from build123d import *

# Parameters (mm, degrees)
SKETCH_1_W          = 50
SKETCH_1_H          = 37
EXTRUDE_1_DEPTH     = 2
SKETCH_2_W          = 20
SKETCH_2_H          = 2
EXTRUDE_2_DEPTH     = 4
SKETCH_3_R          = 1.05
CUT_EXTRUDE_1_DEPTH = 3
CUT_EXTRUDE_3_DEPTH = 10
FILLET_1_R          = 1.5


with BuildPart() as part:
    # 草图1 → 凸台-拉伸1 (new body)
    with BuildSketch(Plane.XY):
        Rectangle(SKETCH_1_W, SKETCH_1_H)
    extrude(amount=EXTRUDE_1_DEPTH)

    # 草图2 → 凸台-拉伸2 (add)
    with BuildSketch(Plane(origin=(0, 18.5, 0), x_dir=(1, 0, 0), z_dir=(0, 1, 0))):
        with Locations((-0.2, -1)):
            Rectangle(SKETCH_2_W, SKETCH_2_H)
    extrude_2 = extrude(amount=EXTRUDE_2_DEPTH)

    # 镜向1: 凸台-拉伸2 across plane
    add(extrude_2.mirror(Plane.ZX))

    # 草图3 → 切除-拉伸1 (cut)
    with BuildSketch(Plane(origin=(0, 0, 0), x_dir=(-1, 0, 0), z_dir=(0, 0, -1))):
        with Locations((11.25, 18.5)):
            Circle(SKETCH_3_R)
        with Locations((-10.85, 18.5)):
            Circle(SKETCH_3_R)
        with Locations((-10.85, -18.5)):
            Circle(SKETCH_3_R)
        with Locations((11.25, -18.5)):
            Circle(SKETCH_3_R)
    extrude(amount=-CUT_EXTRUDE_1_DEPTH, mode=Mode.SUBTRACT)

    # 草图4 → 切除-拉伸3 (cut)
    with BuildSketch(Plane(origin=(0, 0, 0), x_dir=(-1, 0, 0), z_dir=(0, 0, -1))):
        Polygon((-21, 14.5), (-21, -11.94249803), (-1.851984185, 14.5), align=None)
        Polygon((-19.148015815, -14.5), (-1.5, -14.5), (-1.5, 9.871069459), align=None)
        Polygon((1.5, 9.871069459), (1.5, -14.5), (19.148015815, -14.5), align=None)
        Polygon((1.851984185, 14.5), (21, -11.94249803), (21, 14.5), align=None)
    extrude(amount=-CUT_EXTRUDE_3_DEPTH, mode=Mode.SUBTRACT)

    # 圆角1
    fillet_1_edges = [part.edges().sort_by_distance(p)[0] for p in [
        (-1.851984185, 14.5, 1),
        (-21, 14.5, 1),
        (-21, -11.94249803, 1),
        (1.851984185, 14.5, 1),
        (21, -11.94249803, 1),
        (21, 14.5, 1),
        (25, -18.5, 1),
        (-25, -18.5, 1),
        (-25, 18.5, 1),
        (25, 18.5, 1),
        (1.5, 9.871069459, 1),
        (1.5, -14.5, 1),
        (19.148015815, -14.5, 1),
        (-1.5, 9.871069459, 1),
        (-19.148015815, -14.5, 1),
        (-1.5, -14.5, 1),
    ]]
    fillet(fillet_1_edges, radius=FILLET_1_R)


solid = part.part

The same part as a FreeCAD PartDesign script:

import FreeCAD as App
import Part
import Sketcher

V = App.Vector
Q = App.Units.Quantity


def edges_at(feature, points):
    """Names of the edges that pass closest to the given points."""
    edges = feature.Shape.Edges
    near = lambda p: min(range(len(edges)), key=lambda i: edges[i].distToShape(Part.Vertex(*p))[0])
    return sorted({f"Edge{near(p) + 1}" for p in points})


def add_polygon(sketch, points):
    """Adds a closed chain of lines whose ends are joined by coincident constraints."""
    first, n = sketch.GeometryCount, len(points)
    for a, b in zip(points, points[1:] + points[:1]):
        sketch.addGeometry(Part.LineSegment(App.Vector(*a, 0), App.Vector(*b, 0)), False)
    for i in range(n):
        sketch.addConstraint(Sketcher.Constraint("Coincident", first + i, 2, first + (i + 1) % n, 1))

doc = App.newDocument("Part")
body = doc.addObject("PartDesign::Body", "Body")

sketch1 = body.newObject("Sketcher::SketchObject", "Sketch")
sketch1.AttachmentSupport = (doc.getObject("XY_Plane"), [""])
sketch1.MapMode = "FlatFace"
add_polygon(sketch1, [(-25, 18.5), (-25, -18.5), (25, -18.5), (25, 18.5)])
sketch1.addConstraint([
    Sketcher.Constraint("Vertical", 0),
    Sketcher.Constraint("Horizontal", 1),
    Sketcher.Constraint("Vertical", 2),
    Sketcher.Constraint("Horizontal", 3),
    Sketcher.Constraint("Symmetric", 0, 2, 2, 2, -1, 1),
    Sketcher.Constraint("DistanceX", 1, 1, 1, 2, Q("50 mm")),
    Sketcher.Constraint("DistanceY", 0, 2, 0, 1, Q("37 mm")),
])
pad1 = body.newObject("PartDesign::Pad", "Pad")
pad1.Profile = sketch1
pad1.Length = 2

sketch2 = body.newObject("Sketcher::SketchObject", "Sketch001")
sketch2.AttachmentSupport = (doc.getObject("XZ_Plane"), [""])
sketch2.MapMode = "FlatFace"
sketch2.AttachmentOffset = App.Placement(V(0, 0, -18.5), App.Rotation())
add_polygon(sketch2, [(-10.2, 0), (-10.2, 2), (9.8, 2), (9.8, 0)])
sketch2.addConstraint([
    Sketcher.Constraint("Vertical", 0),
    Sketcher.Constraint("Horizontal", 1),
    Sketcher.Constraint("Vertical", 2),
    Sketcher.Constraint("Horizontal", 3),
    Sketcher.Constraint("PointOnObject", 2, 2, -1),
    Sketcher.Constraint("DistanceX", 1, 1, 1, 2, Q("20 mm")),
    Sketcher.Constraint("DistanceY", 0, 1, 0, 2, Q("2 mm")),
    Sketcher.Constraint("DistanceX", 0, 2, -1, 1, Q("10.2 mm")),
])
pad2 = body.newObject("PartDesign::Pad", "Pad001")
pad2.Profile = sketch2
pad2.Length = 4
pad2.Reversed = True
doc.recompute()

mirrored = body.newObject("PartDesign::Mirrored", "Mirrored")
mirrored.Originals = [pad2]
mirrored.MirrorPlane = (doc.getObject("XZ_Plane"), [""])
body.Tip = mirrored

sketch3 = body.newObject("Sketcher::SketchObject", "Sketch002")
sketch3.AttachmentSupport = (doc.getObject("XY_Plane"), [""])
sketch3.MapMode = "FlatFace"
sketch3.addGeometry([
    Part.Circle(V(-11.25, 18.5, 0), V(0, 0, 1), 1.05),
    Part.Circle(V(10.85, 18.5, 0), V(0, 0, 1), 1.05),
    Part.Circle(V(10.85, -18.5, 0), V(0, 0, 1), 1.05),
    Part.Circle(V(-11.25, -18.5, 0), V(0, 0, 1), 1.05),
], False)
sketch3.addConstraint([
    Sketcher.Constraint("Equal", 0, 1),
    Sketcher.Constraint("Equal", 1, 2),
    Sketcher.Constraint("Equal", 2, 3),
    Sketcher.Constraint("Symmetric", 1, 3, 2, 3, -1),
    Sketcher.Constraint("Symmetric", 0, 3, 3, 3, -1),
    Sketcher.Constraint("Horizontal", 0, 3, 1, 3),
    Sketcher.Constraint("Diameter", 0, Q("2.1 mm")),
    Sketcher.Constraint("DistanceY", 2, 3, 1, 3, Q("37 mm")),
    Sketcher.Constraint("DistanceX", 0, 3, 1, 3, Q("22.1 mm")),
    Sketcher.Constraint("DistanceX", 0, 3, -1, 1, Q("11.25 mm")),
])
pocket1 = body.newObject("PartDesign::Pocket", "Pocket")
pocket1.Profile = sketch3
pocket1.Length = 3
pocket1.Reversed = True

sketch4 = body.newObject("Sketcher::SketchObject", "Sketch003")
sketch4.AttachmentSupport = (doc.getObject("XY_Plane"), [""])
sketch4.MapMode = "FlatFace"
add_polygon(sketch4, [(21, 14.5), (21, -11.942498), (1.851984, 14.5)])
add_polygon(sketch4, [(19.148016, -14.5), (1.5, -14.5), (1.5, 9.871069)])
add_polygon(sketch4, [(-1.5, 9.871069), (-1.5, -14.5), (-19.148016, -14.5)])
add_polygon(sketch4, [(-1.851984, 14.5), (-21, -11.942498), (-21, 14.5)])
sketch4.addConstraint([
    Sketcher.Constraint("Vertical", 0),
    Sketcher.Constraint("Horizontal", 2),
    Sketcher.Constraint("Horizontal", 3),
    Sketcher.Constraint("Vertical", 4),
    Sketcher.Constraint("Vertical", 6),
    Sketcher.Constraint("Horizontal", 7),
    Sketcher.Constraint("Vertical", 10),
    Sketcher.Constraint("Horizontal", 11),
    Sketcher.Constraint("Symmetric", 3, 2, 6, 2, -2),
    Sketcher.Constraint("Symmetric", 0, 2, 9, 2, -2),
    Sketcher.Constraint("Symmetric", 1, 2, 11, 2, -2),
    Sketcher.Constraint("Parallel", 1, 5),
    Sketcher.Constraint("Parallel", 8, 9),
    Sketcher.Constraint("Horizontal", 4, 2, 8, 2),
    Sketcher.Constraint("DistanceX", -1, 1, 0, 2, Q("21 mm")),
    Sketcher.Constraint("DistanceY", 3, 2, 1, 2, Q("29 mm")),
    Sketcher.Constraint("DistanceX", 6, 2, 3, 2, Q("3 mm")),
    Sketcher.Constraint("DistanceX", 7, 2, 1, 2, Q("21 mm")),
    Sketcher.Constraint("DistanceY", -1, 1, 1, 2, Q("14.5 mm")),
    Sketcher.Constraint("DistanceY", 0, 2, 0, 1, Q("26.442498 mm")),
    Sketcher.Constraint("DistanceY", 4, 1, 4, 2, Q("24.371069 mm")),
])
pocket2 = body.newObject("PartDesign::Pocket", "Pocket001")
pocket2.Profile = sketch4
pocket2.Length = 10
pocket2.Reversed = True
doc.recompute()

fillet = body.newObject("PartDesign::Fillet", "Fillet")
fillet.Base = (pocket2, edges_at(pocket2, [
    (-1.852, 14.5, 1),
    (-21, 14.5, 1),
    (-21, -11.942, 1),
    (1.852, 14.5, 1),
    (21, -11.942, 1),
    (21, 14.5, 1),
    (25, -18.5, 1),
    (-25, -18.5, 1),
    (-25, 18.5, 1),
    (25, 18.5, 1),
    (1.5, 9.871, 1),
    (1.5, -14.5, 1),
    (19.148, -14.5, 1),
    (-1.5, 9.871, 1),
    (-19.148, -14.5, 1),
    (-1.5, -14.5, 1),
]))
fillet.Radius = 1.5

doc.recompute()
